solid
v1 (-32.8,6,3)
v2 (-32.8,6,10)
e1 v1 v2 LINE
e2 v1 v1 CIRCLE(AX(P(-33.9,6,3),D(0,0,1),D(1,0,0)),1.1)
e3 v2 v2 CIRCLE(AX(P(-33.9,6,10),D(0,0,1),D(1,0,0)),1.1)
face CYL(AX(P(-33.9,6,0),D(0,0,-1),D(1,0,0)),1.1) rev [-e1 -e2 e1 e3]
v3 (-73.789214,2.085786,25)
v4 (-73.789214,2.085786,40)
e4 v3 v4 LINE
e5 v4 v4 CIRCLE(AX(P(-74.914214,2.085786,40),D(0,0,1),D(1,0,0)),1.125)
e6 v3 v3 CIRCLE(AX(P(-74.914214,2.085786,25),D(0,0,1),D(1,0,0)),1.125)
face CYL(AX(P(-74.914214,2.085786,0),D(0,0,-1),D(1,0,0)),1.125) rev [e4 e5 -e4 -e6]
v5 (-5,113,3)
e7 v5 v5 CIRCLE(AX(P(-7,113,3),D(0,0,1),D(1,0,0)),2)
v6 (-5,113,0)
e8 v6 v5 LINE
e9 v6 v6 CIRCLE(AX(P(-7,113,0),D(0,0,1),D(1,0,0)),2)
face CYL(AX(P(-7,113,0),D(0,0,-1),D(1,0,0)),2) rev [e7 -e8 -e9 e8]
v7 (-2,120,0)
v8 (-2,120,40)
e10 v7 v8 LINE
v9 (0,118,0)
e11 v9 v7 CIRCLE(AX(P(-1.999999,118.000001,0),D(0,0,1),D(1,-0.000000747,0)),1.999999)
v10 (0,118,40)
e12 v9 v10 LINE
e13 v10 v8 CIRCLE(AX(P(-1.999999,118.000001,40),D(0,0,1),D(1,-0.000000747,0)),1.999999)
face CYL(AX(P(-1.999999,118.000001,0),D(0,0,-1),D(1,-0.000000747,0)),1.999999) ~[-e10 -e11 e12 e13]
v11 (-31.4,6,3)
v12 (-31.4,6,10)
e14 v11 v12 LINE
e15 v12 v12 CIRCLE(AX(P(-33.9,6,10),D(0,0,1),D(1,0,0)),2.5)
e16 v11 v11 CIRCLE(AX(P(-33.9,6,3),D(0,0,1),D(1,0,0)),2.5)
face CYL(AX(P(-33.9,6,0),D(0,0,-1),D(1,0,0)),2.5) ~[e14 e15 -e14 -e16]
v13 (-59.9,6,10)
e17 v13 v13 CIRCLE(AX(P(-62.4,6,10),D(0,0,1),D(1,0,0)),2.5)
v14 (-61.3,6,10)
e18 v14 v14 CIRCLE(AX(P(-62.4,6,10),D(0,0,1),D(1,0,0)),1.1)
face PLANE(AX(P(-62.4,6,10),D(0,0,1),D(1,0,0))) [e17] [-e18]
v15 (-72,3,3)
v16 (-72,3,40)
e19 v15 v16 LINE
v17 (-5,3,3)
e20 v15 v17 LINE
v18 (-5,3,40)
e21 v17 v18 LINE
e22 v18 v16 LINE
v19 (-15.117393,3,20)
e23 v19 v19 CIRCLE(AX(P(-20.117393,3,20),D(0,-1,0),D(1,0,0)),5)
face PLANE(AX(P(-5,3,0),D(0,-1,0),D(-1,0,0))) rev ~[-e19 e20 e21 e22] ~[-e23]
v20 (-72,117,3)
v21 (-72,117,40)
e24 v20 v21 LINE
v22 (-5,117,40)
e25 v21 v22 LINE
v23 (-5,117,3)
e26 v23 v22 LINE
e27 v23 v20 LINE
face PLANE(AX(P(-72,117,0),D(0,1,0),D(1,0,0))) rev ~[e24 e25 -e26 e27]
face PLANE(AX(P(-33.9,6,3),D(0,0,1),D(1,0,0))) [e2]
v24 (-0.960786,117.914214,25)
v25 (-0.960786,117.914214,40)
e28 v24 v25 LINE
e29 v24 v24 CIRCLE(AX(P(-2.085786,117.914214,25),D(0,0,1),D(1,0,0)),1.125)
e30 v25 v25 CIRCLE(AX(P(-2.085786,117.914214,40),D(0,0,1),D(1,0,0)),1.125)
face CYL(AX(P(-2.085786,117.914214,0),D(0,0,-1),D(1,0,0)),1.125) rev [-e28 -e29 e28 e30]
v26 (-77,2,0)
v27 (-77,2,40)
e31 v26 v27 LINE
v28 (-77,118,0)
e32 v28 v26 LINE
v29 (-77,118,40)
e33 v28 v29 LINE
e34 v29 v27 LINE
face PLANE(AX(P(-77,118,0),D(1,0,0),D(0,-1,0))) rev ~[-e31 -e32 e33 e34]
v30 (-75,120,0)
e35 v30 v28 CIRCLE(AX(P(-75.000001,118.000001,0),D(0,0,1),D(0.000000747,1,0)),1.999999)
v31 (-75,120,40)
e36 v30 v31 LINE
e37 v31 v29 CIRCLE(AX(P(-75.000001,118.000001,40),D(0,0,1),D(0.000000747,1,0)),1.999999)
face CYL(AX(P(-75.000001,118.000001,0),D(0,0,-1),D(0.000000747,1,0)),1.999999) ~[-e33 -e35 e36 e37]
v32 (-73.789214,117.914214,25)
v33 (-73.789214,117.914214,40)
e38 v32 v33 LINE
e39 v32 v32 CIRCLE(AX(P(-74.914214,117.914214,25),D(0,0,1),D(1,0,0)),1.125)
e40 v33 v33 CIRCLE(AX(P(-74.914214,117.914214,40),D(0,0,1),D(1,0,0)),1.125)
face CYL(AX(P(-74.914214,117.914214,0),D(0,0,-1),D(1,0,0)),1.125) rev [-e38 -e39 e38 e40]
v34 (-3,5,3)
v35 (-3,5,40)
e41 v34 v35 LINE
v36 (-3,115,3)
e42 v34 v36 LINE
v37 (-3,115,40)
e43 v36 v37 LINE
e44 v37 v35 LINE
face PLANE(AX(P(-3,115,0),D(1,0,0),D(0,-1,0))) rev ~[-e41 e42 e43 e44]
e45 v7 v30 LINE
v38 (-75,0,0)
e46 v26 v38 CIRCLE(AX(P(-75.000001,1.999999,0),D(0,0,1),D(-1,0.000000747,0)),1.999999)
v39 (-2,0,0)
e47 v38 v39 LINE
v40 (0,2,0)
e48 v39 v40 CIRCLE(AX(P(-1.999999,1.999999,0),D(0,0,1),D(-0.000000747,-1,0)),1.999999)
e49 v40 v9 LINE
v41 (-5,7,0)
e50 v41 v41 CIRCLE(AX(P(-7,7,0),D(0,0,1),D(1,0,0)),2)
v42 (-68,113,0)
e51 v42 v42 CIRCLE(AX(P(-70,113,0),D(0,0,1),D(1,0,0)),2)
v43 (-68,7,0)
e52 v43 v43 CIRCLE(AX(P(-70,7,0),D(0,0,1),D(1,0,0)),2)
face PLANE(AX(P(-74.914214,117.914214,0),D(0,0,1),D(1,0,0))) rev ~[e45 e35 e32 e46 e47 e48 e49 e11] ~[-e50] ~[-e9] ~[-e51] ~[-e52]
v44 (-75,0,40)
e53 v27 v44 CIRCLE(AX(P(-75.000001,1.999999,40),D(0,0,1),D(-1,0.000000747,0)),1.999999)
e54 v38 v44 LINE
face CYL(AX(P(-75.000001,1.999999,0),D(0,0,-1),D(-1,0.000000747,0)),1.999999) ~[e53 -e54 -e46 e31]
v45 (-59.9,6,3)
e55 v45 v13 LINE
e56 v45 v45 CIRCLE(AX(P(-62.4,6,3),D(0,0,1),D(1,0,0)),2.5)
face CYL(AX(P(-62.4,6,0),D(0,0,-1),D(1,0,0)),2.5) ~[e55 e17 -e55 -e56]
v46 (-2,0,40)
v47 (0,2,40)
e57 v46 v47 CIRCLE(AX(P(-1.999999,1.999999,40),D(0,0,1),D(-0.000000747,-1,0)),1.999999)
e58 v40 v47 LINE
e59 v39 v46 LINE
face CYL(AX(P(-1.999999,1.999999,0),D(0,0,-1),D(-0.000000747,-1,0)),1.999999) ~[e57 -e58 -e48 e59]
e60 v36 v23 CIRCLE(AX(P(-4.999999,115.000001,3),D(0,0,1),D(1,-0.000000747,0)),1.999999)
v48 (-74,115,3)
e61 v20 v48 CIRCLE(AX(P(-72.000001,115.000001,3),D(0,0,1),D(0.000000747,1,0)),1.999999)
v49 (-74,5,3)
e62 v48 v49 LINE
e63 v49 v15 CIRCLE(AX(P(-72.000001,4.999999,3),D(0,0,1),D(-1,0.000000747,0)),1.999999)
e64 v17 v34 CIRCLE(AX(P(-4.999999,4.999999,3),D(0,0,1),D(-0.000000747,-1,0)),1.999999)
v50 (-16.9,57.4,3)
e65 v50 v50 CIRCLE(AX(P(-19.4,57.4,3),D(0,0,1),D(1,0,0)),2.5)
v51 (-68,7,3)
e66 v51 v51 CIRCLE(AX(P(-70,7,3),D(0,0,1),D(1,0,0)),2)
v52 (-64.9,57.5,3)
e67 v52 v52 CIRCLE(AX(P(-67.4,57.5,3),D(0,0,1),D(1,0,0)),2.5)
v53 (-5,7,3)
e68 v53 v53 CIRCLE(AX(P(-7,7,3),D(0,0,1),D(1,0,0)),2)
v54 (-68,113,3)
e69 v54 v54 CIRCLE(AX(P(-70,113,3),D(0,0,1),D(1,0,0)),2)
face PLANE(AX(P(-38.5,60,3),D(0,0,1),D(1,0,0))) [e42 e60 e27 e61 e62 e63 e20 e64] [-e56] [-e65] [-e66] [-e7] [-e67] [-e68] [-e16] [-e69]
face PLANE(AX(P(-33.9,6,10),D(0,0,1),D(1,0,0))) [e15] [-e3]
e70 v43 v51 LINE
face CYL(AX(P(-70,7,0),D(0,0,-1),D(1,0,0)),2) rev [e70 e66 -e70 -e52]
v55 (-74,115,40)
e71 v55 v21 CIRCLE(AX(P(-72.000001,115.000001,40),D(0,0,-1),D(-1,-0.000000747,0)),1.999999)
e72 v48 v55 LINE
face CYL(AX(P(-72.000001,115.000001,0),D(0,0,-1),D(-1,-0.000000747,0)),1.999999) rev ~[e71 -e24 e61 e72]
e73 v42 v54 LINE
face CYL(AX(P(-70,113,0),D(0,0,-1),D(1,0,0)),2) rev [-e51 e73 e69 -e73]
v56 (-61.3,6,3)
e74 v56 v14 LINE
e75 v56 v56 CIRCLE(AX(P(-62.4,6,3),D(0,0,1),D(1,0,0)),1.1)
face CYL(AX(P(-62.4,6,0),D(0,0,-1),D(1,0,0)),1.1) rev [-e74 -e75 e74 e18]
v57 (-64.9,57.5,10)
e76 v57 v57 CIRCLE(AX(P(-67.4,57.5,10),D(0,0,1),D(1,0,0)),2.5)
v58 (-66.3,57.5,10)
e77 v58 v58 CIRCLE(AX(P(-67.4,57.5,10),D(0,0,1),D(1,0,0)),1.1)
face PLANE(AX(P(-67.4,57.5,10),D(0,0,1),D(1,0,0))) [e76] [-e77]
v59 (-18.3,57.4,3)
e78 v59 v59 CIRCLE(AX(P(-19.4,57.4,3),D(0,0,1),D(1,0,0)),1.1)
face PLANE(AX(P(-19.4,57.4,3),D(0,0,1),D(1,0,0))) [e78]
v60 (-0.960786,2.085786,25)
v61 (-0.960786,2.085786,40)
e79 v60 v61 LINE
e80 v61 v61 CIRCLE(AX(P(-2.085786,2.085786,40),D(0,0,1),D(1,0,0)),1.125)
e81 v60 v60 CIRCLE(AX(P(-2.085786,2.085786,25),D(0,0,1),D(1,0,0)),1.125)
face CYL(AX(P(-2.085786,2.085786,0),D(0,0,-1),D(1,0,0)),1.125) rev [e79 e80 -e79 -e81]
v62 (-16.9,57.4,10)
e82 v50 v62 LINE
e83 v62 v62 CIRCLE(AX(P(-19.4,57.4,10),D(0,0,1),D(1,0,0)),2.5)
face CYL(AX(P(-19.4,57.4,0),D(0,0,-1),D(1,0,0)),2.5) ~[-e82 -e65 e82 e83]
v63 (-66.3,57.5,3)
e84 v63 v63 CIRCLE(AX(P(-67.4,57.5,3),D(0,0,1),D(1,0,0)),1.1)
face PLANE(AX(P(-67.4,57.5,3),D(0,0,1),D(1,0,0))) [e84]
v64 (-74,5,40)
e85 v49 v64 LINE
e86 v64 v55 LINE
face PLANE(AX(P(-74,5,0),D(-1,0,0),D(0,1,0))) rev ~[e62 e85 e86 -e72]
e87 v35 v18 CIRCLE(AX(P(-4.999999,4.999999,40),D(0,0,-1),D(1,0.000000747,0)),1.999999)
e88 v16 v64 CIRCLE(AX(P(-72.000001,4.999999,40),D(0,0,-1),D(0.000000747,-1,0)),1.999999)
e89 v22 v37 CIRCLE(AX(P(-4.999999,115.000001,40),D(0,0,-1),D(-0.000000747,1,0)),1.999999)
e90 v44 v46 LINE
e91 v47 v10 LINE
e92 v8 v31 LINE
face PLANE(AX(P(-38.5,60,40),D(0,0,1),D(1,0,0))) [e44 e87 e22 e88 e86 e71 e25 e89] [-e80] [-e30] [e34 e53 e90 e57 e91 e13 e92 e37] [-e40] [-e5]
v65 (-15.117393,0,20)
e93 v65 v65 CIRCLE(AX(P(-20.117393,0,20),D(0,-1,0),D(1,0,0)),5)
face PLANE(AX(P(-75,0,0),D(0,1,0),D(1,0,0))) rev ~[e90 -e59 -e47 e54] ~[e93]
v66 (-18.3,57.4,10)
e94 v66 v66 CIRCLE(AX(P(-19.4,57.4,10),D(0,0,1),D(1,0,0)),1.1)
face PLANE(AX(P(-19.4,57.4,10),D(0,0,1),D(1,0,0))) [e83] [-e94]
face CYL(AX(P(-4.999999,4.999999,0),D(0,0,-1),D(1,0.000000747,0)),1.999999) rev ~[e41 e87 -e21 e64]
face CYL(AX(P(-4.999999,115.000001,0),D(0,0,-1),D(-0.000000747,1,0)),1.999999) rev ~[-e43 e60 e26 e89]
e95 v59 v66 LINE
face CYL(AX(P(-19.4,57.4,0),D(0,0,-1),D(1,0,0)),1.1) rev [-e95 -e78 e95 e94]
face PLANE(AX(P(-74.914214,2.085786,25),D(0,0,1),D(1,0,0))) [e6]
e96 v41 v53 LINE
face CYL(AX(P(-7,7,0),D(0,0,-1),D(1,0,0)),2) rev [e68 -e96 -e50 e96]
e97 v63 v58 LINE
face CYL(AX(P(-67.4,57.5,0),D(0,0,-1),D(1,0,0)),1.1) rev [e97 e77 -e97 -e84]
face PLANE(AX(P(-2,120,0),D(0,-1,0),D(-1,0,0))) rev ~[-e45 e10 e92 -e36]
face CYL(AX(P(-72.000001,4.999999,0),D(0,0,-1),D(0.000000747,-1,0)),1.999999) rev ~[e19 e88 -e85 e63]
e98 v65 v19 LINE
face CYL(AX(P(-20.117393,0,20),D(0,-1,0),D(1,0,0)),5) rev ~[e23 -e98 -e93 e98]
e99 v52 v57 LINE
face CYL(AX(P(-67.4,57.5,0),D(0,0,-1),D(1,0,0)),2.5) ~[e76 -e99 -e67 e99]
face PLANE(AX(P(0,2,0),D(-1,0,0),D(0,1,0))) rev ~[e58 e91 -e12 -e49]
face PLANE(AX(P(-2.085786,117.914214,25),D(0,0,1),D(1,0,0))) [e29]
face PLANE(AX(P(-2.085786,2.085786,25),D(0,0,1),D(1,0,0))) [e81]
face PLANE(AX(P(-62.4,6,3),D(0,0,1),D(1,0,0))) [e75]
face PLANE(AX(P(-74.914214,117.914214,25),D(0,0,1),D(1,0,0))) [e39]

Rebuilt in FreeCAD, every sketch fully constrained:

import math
import FreeCAD as App
import Part
import Sketcher

V = App.Vector

doc = App.newDocument("Part")
body = doc.addObject("PartDesign::Body", "Body")

sketch1 = body.newObject("Sketcher::SketchObject", "Sketch")
sketch1.AttachmentSupport = (doc.getObject("XY_Plane"), [""])
sketch1.MapMode = "FlatFace"
sketch1.addGeometry([
    Part.LineSegment(V(-2, 120, 0), V(-75, 120, 0)),
    Part.ArcOfCircle(Part.Circle(V(-75, 118, 0), V(0, 0, 1), 2), math.radians(90), math.radians(180)),
    Part.LineSegment(V(-77, 118, 0), V(-77, 2, 0)),
    Part.ArcOfCircle(Part.Circle(V(-75, 2, 0), V(0, 0, 1), 2), math.radians(180), math.radians(270)),
    Part.LineSegment(V(-75, 0, 0), V(-2, 0, 0)),
    Part.ArcOfCircle(Part.Circle(V(-2, 2, 0), V(0, 0, 1), 2), math.radians(-90), math.radians(0)),
    Part.LineSegment(V(0, 2, 0), V(0, 118, 0)),
    Part.ArcOfCircle(Part.Circle(V(-2, 118, 0), V(0, 0, 1), 2), math.radians(0), math.radians(90)),
    Part.Circle(V(-74.9, 2.1, 0), V(0, 0, 1), 1.1),
    Part.Circle(V(-2.1, 2.1, 0), V(0, 0, 1), 1.1),
    Part.Circle(V(-74.9, 117.9, 0), V(0, 0, 1), 1.1),
    Part.ArcOfCircle(Part.Circle(V(-72, 115, 0), V(0, 0, 1), 2), math.radians(90), math.radians(180)),
    Part.LineSegment(V(-72, 117, 0), V(-5, 117, 0)),
    Part.ArcOfCircle(Part.Circle(V(-5, 115, 0), V(0, 0, 1), 2), math.radians(0), math.radians(90)),
    Part.LineSegment(V(-3, 115, 0), V(-3, 5, 0)),
    Part.ArcOfCircle(Part.Circle(V(-5, 5, 0), V(0, 0, 1), 2), math.radians(-90), math.radians(0)),
    Part.LineSegment(V(-5, 3, 0), V(-72, 3, 0)),
    Part.ArcOfCircle(Part.Circle(V(-72, 5, 0), V(0, 0, 1), 2), math.radians(180), math.radians(270)),
    Part.LineSegment(V(-74, 5, 0), V(-74, 115, 0)),
    Part.Circle(V(-2.1, 117.9, 0), V(0, 0, 1), 1.1),
], False)
sketch1.addConstraint([
    Sketcher.Constraint("Tangent", 0, 2, 1, 1),
    Sketcher.Constraint("Tangent", 1, 2, 2, 1),
    Sketcher.Constraint("Tangent", 2, 2, 3, 1),
    Sketcher.Constraint("Tangent", 3, 2, 4, 1),
    Sketcher.Constraint("Tangent", 4, 2, 5, 1),
    Sketcher.Constraint("Tangent", 5, 2, 6, 1),
    Sketcher.Constraint("Tangent", 6, 2, 7, 1),
    Sketcher.Constraint("Tangent", 7, 2, 0, 1),
    Sketcher.Constraint("Tangent", 11, 1, 12, 1),
    Sketcher.Constraint("Tangent", 12, 2, 13, 2),
    Sketcher.Constraint("Tangent", 13, 1, 14, 1),
    Sketcher.Constraint("Tangent", 14, 2, 15, 2),
    Sketcher.Constraint("Tangent", 15, 1, 16, 1),
    Sketcher.Constraint("Tangent", 16, 2, 17, 2),
    Sketcher.Constraint("Tangent", 17, 1, 18, 1),
    Sketcher.Constraint("Tangent", 18, 2, 11, 2),
    Sketcher.Constraint("Horizontal", 0),
    Sketcher.Constraint("Vertical", 2),
    Sketcher.Constraint("Horizontal", 4),
    Sketcher.Constraint("Vertical", 6),
    Sketcher.Constraint("Horizontal", 12),
    Sketcher.Constraint("Vertical", 14),
    Sketcher.Constraint("Horizontal", 16),
    Sketcher.Constraint("Vertical", 18),
    Sketcher.Constraint("Equal", 1, 3),
    Sketcher.Constraint("Equal", 3, 5),
    Sketcher.Constraint("Equal", 5, 7),
    Sketcher.Constraint("Equal", 8, 9),
    Sketcher.Constraint("Equal", 9, 10),
    Sketcher.Constraint("Equal", 7, 11),
    Sketcher.Constraint("Equal", 11, 13),
    Sketcher.Constraint("Equal", 13, 15),
    Sketcher.Constraint("Equal", 15, 17),
    Sketcher.Constraint("Equal", 10, 19),
    Sketcher.Constraint("PointOnObject", 3, 2, -1),
    Sketcher.Constraint("PointOnObject", 5, 2, -2),
    Sketcher.Constraint("Horizontal", 8, 3, 9, 3),
    Sketcher.Constraint("Horizontal", 10, 3, 19, 3),
    Sketcher.Constraint("Vertical", 8, 3, 10, 3),
    Sketcher.Constraint("Vertical", 9, 3, 19, 3),
    Sketcher.Constraint("Radius", 1, 1.999999),
    Sketcher.Constraint("Diameter", 8, 2.25),
    Sketcher.Constraint("DistanceX", 0, 2, 0, 1, 73.0),
    Sketcher.Constraint("DistanceX", 12, 1, 12, 2, 67.0),
    Sketcher.Constraint("DistanceY", 2, 2, 2, 1, 116.0),
    Sketcher.Constraint("DistanceY", 14, 2, 14, 1, 110.0),
    Sketcher.Constraint("DistanceX", 11, 3, -1, 1, 72.000001),
    Sketcher.Constraint("DistanceY", -1, 1, 11, 3, 115.000001),
    Sketcher.Constraint("DistanceX", 8, 3, 9, 3, 72.828428),
    Sketcher.Constraint("DistanceY", 8, 3, 10, 3, 115.828428),
    Sketcher.Constraint("DistanceX", 8, 3, -1, 1, 74.914214),
    Sketcher.Constraint("DistanceY", -1, 1, 8, 3, 2.085786),
])
pad1 = body.newObject("PartDesign::Pad", "Pad")
pad1.Profile = sketch1
pad1.Length = 40

sketch2 = body.newObject("Sketcher::SketchObject", "Sketch001")
sketch2.AttachmentSupport = (doc.getObject("XY_Plane"), [""])
sketch2.MapMode = "FlatFace"
sketch2.addGeometry([
    Part.LineSegment(V(-5, 117, 0), V(-72, 117, 0)),
    Part.ArcOfCircle(Part.Circle(V(-72, 115, 0), V(0, 0, 1), 2), math.radians(90), math.radians(180)),
    Part.LineSegment(V(-74, 115, 0), V(-74, 5, 0)),
    Part.ArcOfCircle(Part.Circle(V(-72, 5, 0), V(0, 0, 1), 2), math.radians(180), math.radians(270)),
    Part.LineSegment(V(-72, 3, 0), V(-5, 3, 0)),
    Part.ArcOfCircle(Part.Circle(V(-5, 5, 0), V(0, 0, 1), 2), math.radians(-90), math.radians(0)),
    Part.LineSegment(V(-3, 5, 0), V(-3, 115, 0)),
    Part.ArcOfCircle(Part.Circle(V(-5, 115, 0), V(0, 0, 1), 2), math.radians(0), math.radians(90)),
    Part.Circle(V(-70, 7, 0), V(0, 0, 1), 2),
    Part.Circle(V(-62.4, 6, 0), V(0, 0, 1), 2.5),
    Part.Circle(V(-67.4, 57.5, 0), V(0, 0, 1), 2.5),
    Part.Circle(V(-33.9, 6, 0), V(0, 0, 1), 2.5),
    Part.Circle(V(-7, 7, 0), V(0, 0, 1), 2),
    Part.Circle(V(-19.4, 57.4, 0), V(0, 0, 1), 2.5),
    Part.Circle(V(-70, 113, 0), V(0, 0, 1), 2),
    Part.Circle(V(-7, 113, 0), V(0, 0, 1), 2),
], False)
sketch2.addConstraint([
    Sketcher.Constraint("Tangent", 0, 2, 1, 1),
    Sketcher.Constraint("Tangent", 1, 2, 2, 1),
    Sketcher.Constraint("Tangent", 2, 2, 3, 1),
    Sketcher.Constraint("Tangent", 3, 2, 4, 1),
    Sketcher.Constraint("Tangent", 4, 2, 5, 1),
    Sketcher.Constraint("Tangent", 5, 2, 6, 1),
    Sketcher.Constraint("Tangent", 6, 2, 7, 1),
    Sketcher.Constraint("Tangent", 7, 2, 0, 1),
    Sketcher.Constraint("Horizontal", 0),
    Sketcher.Constraint("Vertical", 2),
    Sketcher.Constraint("Horizontal", 4),
    Sketcher.Constraint("Vertical", 6),
    Sketcher.Constraint("Equal", 1, 3),
    Sketcher.Constraint("Equal", 3, 5),
    Sketcher.Constraint("Equal", 5, 7),
    Sketcher.Constraint("Equal", 7, 8),
    Sketcher.Constraint("Equal", 9, 10),
    Sketcher.Constraint("Equal", 10, 11),
    Sketcher.Constraint("Equal", 8, 12),
    Sketcher.Constraint("Equal", 11, 13),
    Sketcher.Constraint("Equal", 12, 14),
    Sketcher.Constraint("Equal", 14, 15),
    Sketcher.Constraint("Horizontal", 9, 3, 11, 3),
    Sketcher.Constraint("Horizontal", 8, 3, 12, 3),
    Sketcher.Constraint("Horizontal", 14, 3, 15, 3),
    Sketcher.Constraint("Vertical", 8, 3, 14, 3),
    Sketcher.Constraint("Vertical", 12, 3, 15, 3),
    Sketcher.Constraint("Diameter", 8, 4.0),
    Sketcher.Constraint("Diameter", 9, 5.0),
    Sketcher.Constraint("DistanceX", 0, 2, 0, 1, 67.0),
    Sketcher.Constraint("DistanceY", 2, 2, 2, 1, 110.0),
    Sketcher.Constraint("DistanceX", 1, 3, -1, 1, 72.000001),
    Sketcher.Constraint("DistanceY", -1, 1, 1, 3, 115.000001),
    Sketcher.Constraint("DistanceX", 8, 3, -1, 1, 70.0),
    Sketcher.Constraint("DistanceY", -1, 1, 8, 3, 7.0),
    Sketcher.Constraint("DistanceY", -1, 1, 9, 3, 6.0),
    Sketcher.Constraint("DistanceX", 12, 3, -1, 1, 7.0),
    Sketcher.Constraint("DistanceY", -1, 1, 14, 3, 113.0),
    Sketcher.Constraint("DistanceX", 10, 3, 9, 3, 5.0),
    Sketcher.Constraint("DistanceX", 10, 3, 13, 3, 48.0),
    Sketcher.Constraint("DistanceX", 9, 3, -1, 1, 62.4),
    Sketcher.Constraint("DistanceY", -1, 1, 10, 3, 57.5),
    Sketcher.Constraint("DistanceX", 11, 3, -1, 1, 33.9),
    Sketcher.Constraint("DistanceY", -1, 1, 13, 3, 57.4),
])
pad2 = body.newObject("PartDesign::Pad", "Pad001")
pad2.Profile = sketch2
pad2.Length = 3

sketch3 = body.newObject("Sketcher::SketchObject", "Sketch002")
sketch3.AttachmentSupport = (doc.getObject("XY_Plane"), [""])
sketch3.MapMode = "FlatFace"
sketch3.addGeometry([
    Part.Circle(V(-67.4, 57.5, 0), V(0, 0, 1), 2.5),
    Part.Circle(V(-67.4, 57.5, 0), V(0, 0, 1), 1.1),
    Part.Circle(V(-19.4, 57.4, 0), V(0, 0, 1), 2.5),
    Part.Circle(V(-19.4, 57.4, 0), V(0, 0, 1), 1.1),
    Part.Circle(V(-33.9, 6, 0), V(0, 0, 1), 2.5),
    Part.Circle(V(-33.9, 6, 0), V(0, 0, 1), 1.1),
    Part.Circle(V(-62.4, 6, 0), V(0, 0, 1), 2.5),
    Part.Circle(V(-62.4, 6, 0), V(0, 0, 1), 1.1),
], False)
sketch3.addConstraint([
    Sketcher.Constraint("Coincident", 1, 3, 0, 3),
    Sketcher.Constraint("Coincident", 3, 3, 2, 3),
    Sketcher.Constraint("Coincident", 5, 3, 4, 3),
    Sketcher.Constraint("Coincident", 7, 3, 6, 3),
    Sketcher.Constraint("Equal", 0, 2),
    Sketcher.Constraint("Equal", 1, 3),
    Sketcher.Constraint("Equal", 2, 4),
    Sketcher.Constraint("Equal", 3, 5),
    Sketcher.Constraint("Equal", 4, 6),
    Sketcher.Constraint("Equal", 5, 7),
    Sketcher.Constraint("Horizontal", 5, 3, 6, 3),
    Sketcher.Constraint("Diameter", 0, 5.0),
    Sketcher.Constraint("Diameter", 1, 2.2),
    Sketcher.Constraint("DistanceY", -1, 1, 4, 3, 6.0),
    Sketcher.Constraint("DistanceX", 0, 3, 2, 3, 48.0),
    Sketcher.Constraint("DistanceX", 0, 3, 6, 3, 5.0),
    Sketcher.Constraint("DistanceX", 0, 3, -1, 1, 67.4),
    Sketcher.Constraint("DistanceY", -1, 1, 0, 3, 57.5),
    Sketcher.Constraint("DistanceY", -1, 1, 2, 3, 57.4),
    Sketcher.Constraint("DistanceX", 4, 3, -1, 1, 33.9),
])
pad3 = body.newObject("PartDesign::Pad", "Pad002")
pad3.Profile = sketch3
pad3.Length = 10

sketch4 = body.newObject("Sketcher::SketchObject", "Sketch003")
sketch4.AttachmentSupport = (doc.getObject("XY_Plane"), [""])
sketch4.MapMode = "FlatFace"
sketch4.addGeometry([
    Part.Circle(V(-67.4, 57.5, 0), V(0, 0, 1), 1.1),
    Part.Circle(V(-19.4, 57.4, 0), V(0, 0, 1), 1.1),
    Part.Circle(V(-33.9, 6, 0), V(0, 0, 1), 1.1),
    Part.Circle(V(-62.4, 6, 0), V(0, 0, 1), 1.1),
], False)
sketch4.addConstraint([
    Sketcher.Constraint("Equal", 0, 1),
    Sketcher.Constraint("Equal", 1, 2),
    Sketcher.Constraint("Equal", 2, 3),
    Sketcher.Constraint("Horizontal", 2, 3, 3, 3),
    Sketcher.Constraint("Diameter", 0, 2.2),
    Sketcher.Constraint("DistanceY", -1, 1, 2, 3, 6.0),
    Sketcher.Constraint("DistanceX", 0, 3, 1, 3, 48.0),
    Sketcher.Constraint("DistanceX", 0, 3, 3, 3, 5.0),
    Sketcher.Constraint("DistanceX", 0, 3, -1, 1, 67.4),
    Sketcher.Constraint("DistanceY", -1, 1, 0, 3, 57.5),
    Sketcher.Constraint("DistanceY", -1, 1, 1, 3, 57.4),
    Sketcher.Constraint("DistanceX", 2, 3, -1, 1, 33.9),
])
pad4 = body.newObject("PartDesign::Pad", "Pad003")
pad4.Profile = sketch4
pad4.Length = 3

sketch5 = body.newObject("Sketcher::SketchObject", "Sketch004")
sketch5.AttachmentSupport = (doc.getObject("XZ_Plane"), [""])
sketch5.MapMode = "FlatFace"
sketch5.addGeometry(Part.Circle(V(-20, 20, 0), V(0, 0, 1), 5), False)
sketch5.addConstraint([
    Sketcher.Constraint("Diameter", 0, 10.0),
    Sketcher.Constraint("DistanceY", -1, 1, 0, 3, 20.0),
    Sketcher.Constraint("DistanceX", 0, 3, -1, 1, 20.117393),
])
pocket1 = body.newObject("PartDesign::Pocket", "Pocket")
pocket1.Profile = sketch5
pocket1.Length = 4

sketch6 = body.newObject("Sketcher::SketchObject", "Sketch005")
sketch6.AttachmentSupport = (doc.getObject("XY_Plane"), [""])
sketch6.MapMode = "FlatFace"
sketch6.addGeometry([
    Part.Circle(V(-74.9, 117.9, 0), V(0, 0, 1), 1.1),
    Part.Circle(V(-2.1, 117.9, 0), V(0, 0, 1), 1.1),
    Part.Circle(V(-2.1, 2.1, 0), V(0, 0, 1), 1.1),
    Part.Circle(V(-74.9, 2.1, 0), V(0, 0, 1), 1.1),
], False)
sketch6.addConstraint([
    Sketcher.Constraint("Equal", 0, 1),
    Sketcher.Constraint("Equal", 1, 2),
    Sketcher.Constraint("Equal", 2, 3),
    Sketcher.Constraint("Horizontal", 0, 3, 1, 3),
    Sketcher.Constraint("Horizontal", 2, 3, 3, 3),
    Sketcher.Constraint("Vertical", 1, 3, 2, 3),
    Sketcher.Constraint("Vertical", 0, 3, 3, 3),
    Sketcher.Constraint("Diameter", 0, 2.25),
    Sketcher.Constraint("DistanceX", 0, 3, 1, 3, 72.828428),
    Sketcher.Constraint("DistanceY", 2, 3, 1, 3, 115.828428),
    Sketcher.Constraint("DistanceX", 0, 3, -1, 1, 74.914214),
    Sketcher.Constraint("DistanceY", -1, 1, 0, 3, 117.914214),
])
pad5 = body.newObject("PartDesign::Pad", "Pad004")
pad5.Profile = sketch6
pad5.Length = 25

doc.recompute()
